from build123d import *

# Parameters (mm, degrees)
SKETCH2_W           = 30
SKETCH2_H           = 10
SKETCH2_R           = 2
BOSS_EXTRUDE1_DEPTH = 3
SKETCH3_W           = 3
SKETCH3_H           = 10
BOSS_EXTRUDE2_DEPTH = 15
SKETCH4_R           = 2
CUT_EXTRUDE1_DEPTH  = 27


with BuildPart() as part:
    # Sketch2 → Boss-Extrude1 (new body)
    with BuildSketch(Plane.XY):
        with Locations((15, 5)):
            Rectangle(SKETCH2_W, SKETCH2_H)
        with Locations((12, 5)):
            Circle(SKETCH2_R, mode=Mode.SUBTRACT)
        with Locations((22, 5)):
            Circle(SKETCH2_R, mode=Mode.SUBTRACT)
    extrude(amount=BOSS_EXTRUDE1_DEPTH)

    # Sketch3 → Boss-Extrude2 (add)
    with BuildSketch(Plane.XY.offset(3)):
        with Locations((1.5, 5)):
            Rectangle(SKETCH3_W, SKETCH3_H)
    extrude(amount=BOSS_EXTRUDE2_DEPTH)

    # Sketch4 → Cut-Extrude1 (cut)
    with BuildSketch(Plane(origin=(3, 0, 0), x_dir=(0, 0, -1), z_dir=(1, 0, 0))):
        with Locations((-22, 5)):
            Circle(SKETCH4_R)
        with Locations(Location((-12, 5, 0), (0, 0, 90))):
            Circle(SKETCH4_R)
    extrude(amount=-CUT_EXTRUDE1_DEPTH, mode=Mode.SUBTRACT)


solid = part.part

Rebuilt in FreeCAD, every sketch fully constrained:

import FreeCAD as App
import Part
import Sketcher
from FreeCAD import Vector


def add_polygon(sketch, points):
    """Adds a closed chain of lines whose ends are joined by coincident constraints."""
    first, n = sketch.GeometryCount, len(points)
    for a, b in zip(points, points[1:] + points[:1]):
        sketch.addGeometry(Part.LineSegment(App.Vector(*a, 0), App.Vector(*b, 0)), False)
    for i in range(n):
        sketch.addConstraint(Sketcher.Constraint("Coincident", first + i, 2, first + (i + 1) % n, 1))

doc = App.newDocument("Part")
params = doc.addObject("Spreadsheet::Sheet", "Params")
for row, (alias, value) in enumerate([
    ("sketch1_diameter", "4 mm"),
    ("sketch1_width", "30 mm"),
    ("sketch1_height", "10 mm"),
    ("pad1_length", "3 mm"),
    ("sketch2_width", "3 mm"),
    ("sketch2_height", "10 mm"),
    ("pad2_length", "15 mm"),
    ("sketch3_diameter", "4 mm"),
    ("pocket1_length", "27 mm"),
], start=1):
    params.set(f"A{row}", alias)
    params.set(f"B{row}", "=" + value)
    params.setAlias(f"B{row}", alias)

body = doc.addObject("PartDesign::Body", "Body")

# Sketch on XY plane
sketch1 = body.newObject("Sketcher::SketchObject", "Sketch")
sketch1.AttachmentSupport = (doc.getObject("XY_Plane"), [""])
sketch1.MapMode = "FlatFace"
add_polygon(sketch1, [(0, 10), (0, 0), (30, 0), (30, 10)])  # lines 0-3
sketch1.addGeometry(Part.Circle(Vector(12, 5, 0), Vector(0, 0, 1), 2), False)  # 4
sketch1.addGeometry(Part.Circle(Vector(22, 5, 0), Vector(0, 0, 1), 2), False)  # 5
sketch1.addConstraint(Sketcher.Constraint("Vertical", 0))
sketch1.addConstraint(Sketcher.Constraint("Horizontal", 1))
sketch1.addConstraint(Sketcher.Constraint("Vertical", 2))
sketch1.addConstraint(Sketcher.Constraint("Horizontal", 3))
sketch1.addConstraint(Sketcher.Constraint("Coincident", 0, 2, -1, 1))
sketch1.addConstraint(Sketcher.Constraint("Equal", 4, 5))
sketch1.addConstraint(Sketcher.Constraint("Horizontal", 4, 3, 5, 3))
sketch1.addConstraint(Sketcher.Constraint("Diameter", 4, 4.0))
sketch1.addConstraint(Sketcher.Constraint("DistanceX", 1, 1, 1, 2, 30.0))
sketch1.addConstraint(Sketcher.Constraint("DistanceY", 0, 2, 0, 1, 10.0))
sketch1.addConstraint(Sketcher.Constraint("DistanceX", -1, 1, 4, 3, 12.0))
sketch1.addConstraint(Sketcher.Constraint("DistanceY", -1, 1, 4, 3, 5.0))
sketch1.addConstraint(Sketcher.Constraint("DistanceX", -1, 1, 5, 3, 22.0))
sketch1.setExpression("Constraints[11]", "Params.sketch1_diameter")
sketch1.setExpression("Constraints[12]", "Params.sketch1_width")
sketch1.setExpression("Constraints[13]", "Params.sketch1_height")
pad1 = body.newObject("PartDesign::Pad", "Pad")
pad1.Profile = sketch1
pad1.setExpression("Length", "Params.pad1_length")

# Sketch on XY plane
sketch2 = body.newObject("Sketcher::SketchObject", "Sketch001")
sketch2.AttachmentSupport = (doc.getObject("XY_Plane"), [""])
sketch2.MapMode = "FlatFace"
sketch2.AttachmentOffset = App.Placement(Vector(0, 0, 3), App.Rotation())
add_polygon(sketch2, [(0, 10), (0, 0), (3, 0), (3, 10)])  # lines 0-3
sketch2.addConstraint(Sketcher.Constraint("Vertical", 0))
sketch2.addConstraint(Sketcher.Constraint("Horizontal", 1))
sketch2.addConstraint(Sketcher.Constraint("Vertical", 2))
sketch2.addConstraint(Sketcher.Constraint("Horizontal", 3))
sketch2.addConstraint(Sketcher.Constraint("Coincident", 0, 2, -1, 1))
sketch2.addConstraint(Sketcher.Constraint("DistanceX", 1, 1, 1, 2, 3.0))
sketch2.addConstraint(Sketcher.Constraint("DistanceY", 0, 2, 0, 1, 10.0))
sketch2.setExpression("Constraints[9]", "Params.sketch2_width")
sketch2.setExpression("Constraints[10]", "Params.sketch2_height")
pad2 = body.newObject("PartDesign::Pad", "Pad001")
pad2.Profile = sketch2
pad2.setExpression("Length", "Params.pad2_length")

# Sketch on YZ plane
sketch3 = body.newObject("Sketcher::SketchObject", "Sketch002")
sketch3.AttachmentSupport = (doc.getObject("YZ_Plane"), [""])
sketch3.MapMode = "FlatFace"
sketch3.AttachmentOffset = App.Placement(Vector(0, 0, 3), App.Rotation())
sketch3.addGeometry(Part.Circle(Vector(5, 22, 0), Vector(0, 0, 1), 2), False)
sketch3.addGeometry(Part.Circle(Vector(5, 12, 0), Vector(0, 0, 1), 2), False)
sketch3.addConstraint(Sketcher.Constraint("Equal", 0, 1))
sketch3.addConstraint(Sketcher.Constraint("Vertical", 0, 3, 1, 3))
sketch3.addConstraint(Sketcher.Constraint("Diameter", 0, 4.0))
sketch3.addConstraint(Sketcher.Constraint("DistanceX", -1, 1, 0, 3, 5.0))
sketch3.addConstraint(Sketcher.Constraint("DistanceY", -1, 1, 0, 3, 22.0))
sketch3.addConstraint(Sketcher.Constraint("DistanceY", -1, 1, 1, 3, 12.0))
sketch3.setExpression("Constraints[2]", "Params.sketch3_diameter")
pocket1 = body.newObject("PartDesign::Pocket", "Pocket")
pocket1.Profile = sketch3
pocket1.setExpression("Length", "Params.pocket1_length")

doc.recompute()
